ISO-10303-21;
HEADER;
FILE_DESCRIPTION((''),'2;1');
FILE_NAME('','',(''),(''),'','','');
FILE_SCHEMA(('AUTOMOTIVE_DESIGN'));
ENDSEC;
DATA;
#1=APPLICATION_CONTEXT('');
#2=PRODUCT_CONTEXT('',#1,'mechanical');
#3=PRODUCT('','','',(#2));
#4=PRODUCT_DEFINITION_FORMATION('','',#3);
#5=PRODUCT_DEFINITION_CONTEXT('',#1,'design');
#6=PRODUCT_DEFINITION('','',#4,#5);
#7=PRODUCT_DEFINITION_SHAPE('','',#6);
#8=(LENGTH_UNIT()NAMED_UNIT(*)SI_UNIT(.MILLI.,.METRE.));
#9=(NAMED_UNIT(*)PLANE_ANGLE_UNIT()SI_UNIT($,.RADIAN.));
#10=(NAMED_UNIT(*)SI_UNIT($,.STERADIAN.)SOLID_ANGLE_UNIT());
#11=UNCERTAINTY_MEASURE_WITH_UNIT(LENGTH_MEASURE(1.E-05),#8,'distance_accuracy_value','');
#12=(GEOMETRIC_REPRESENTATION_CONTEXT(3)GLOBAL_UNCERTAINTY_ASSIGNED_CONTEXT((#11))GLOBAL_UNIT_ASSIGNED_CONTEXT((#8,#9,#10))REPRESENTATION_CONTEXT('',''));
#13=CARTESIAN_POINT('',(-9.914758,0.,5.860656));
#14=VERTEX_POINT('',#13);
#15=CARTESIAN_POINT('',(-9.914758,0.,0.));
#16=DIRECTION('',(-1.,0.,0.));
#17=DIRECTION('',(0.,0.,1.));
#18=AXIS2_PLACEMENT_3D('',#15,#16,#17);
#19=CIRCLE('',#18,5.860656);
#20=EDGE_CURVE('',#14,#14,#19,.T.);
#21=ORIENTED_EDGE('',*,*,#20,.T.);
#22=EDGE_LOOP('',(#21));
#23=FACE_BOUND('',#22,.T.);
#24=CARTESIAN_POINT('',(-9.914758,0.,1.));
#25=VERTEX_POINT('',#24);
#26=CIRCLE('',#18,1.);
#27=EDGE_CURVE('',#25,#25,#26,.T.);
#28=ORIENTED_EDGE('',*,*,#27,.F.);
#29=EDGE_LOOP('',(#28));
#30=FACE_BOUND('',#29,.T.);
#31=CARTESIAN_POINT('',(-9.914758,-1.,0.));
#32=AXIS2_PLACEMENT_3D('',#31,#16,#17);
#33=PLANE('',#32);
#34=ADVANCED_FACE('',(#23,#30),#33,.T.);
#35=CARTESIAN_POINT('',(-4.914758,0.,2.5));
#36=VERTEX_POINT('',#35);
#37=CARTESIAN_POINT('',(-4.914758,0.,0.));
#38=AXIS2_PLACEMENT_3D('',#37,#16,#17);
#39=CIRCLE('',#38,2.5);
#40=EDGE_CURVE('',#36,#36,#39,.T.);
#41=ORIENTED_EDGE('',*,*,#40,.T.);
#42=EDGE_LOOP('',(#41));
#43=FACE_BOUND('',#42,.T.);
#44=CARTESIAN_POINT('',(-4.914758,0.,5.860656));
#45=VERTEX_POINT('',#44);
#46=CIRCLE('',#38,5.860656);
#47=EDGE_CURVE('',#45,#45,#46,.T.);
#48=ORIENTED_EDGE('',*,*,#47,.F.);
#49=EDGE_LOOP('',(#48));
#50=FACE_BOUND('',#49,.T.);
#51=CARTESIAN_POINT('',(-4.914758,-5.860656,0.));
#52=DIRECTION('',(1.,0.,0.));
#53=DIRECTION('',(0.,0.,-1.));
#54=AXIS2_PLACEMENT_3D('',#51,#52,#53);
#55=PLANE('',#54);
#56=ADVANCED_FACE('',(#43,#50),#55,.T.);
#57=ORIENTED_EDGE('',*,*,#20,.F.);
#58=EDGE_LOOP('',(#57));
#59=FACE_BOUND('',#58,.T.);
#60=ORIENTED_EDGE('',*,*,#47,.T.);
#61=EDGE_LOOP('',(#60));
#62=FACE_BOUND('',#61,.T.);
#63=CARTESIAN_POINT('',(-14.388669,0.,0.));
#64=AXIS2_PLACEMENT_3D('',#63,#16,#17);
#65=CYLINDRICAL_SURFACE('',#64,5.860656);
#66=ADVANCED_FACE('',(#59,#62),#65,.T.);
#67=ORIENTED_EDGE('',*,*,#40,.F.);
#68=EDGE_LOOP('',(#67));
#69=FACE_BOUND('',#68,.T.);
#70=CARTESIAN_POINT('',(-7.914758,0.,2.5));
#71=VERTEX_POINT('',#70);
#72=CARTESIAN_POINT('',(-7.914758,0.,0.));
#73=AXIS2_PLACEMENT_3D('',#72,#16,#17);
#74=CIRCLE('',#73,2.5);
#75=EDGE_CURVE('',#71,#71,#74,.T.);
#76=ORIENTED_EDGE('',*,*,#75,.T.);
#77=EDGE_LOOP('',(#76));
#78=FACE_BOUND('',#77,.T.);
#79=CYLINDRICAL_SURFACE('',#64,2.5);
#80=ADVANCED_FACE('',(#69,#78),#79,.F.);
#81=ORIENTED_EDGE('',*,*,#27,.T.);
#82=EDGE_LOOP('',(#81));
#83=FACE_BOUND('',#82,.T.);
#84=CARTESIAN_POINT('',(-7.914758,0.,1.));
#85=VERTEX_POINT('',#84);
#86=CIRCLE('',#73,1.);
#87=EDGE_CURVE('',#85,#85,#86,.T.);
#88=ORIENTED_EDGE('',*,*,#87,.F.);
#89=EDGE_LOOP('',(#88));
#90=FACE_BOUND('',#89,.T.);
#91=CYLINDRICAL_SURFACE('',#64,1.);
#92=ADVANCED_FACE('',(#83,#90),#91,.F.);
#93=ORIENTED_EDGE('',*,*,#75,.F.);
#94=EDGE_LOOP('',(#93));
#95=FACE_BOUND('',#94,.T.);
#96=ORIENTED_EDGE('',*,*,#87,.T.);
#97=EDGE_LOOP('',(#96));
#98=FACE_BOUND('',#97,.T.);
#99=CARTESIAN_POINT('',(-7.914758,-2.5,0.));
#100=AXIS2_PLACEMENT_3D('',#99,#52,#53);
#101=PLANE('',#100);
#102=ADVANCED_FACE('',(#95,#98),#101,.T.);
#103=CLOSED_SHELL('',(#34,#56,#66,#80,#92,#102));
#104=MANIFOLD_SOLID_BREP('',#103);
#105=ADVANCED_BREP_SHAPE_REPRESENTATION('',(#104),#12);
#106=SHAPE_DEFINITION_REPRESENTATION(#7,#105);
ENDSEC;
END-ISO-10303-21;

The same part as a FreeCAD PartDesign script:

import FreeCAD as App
import Part
import Sketcher


def add_polygon(sketch, points):
    """Adds a closed chain of lines whose ends are joined by coincident constraints."""
    first, n = sketch.GeometryCount, len(points)
    for a, b in zip(points, points[1:] + points[:1]):
        sketch.addGeometry(Part.LineSegment(App.Vector(*a, 0), App.Vector(*b, 0)), False)
    for i in range(n):
        sketch.addConstraint(Sketcher.Constraint("Coincident", first + i, 2, first + (i + 1) % n, 1))

doc = App.newDocument("Part")
body = doc.addObject("PartDesign::Body", "Body")

# Sketch on XY plane
sketch1 = body.newObject("Sketcher::SketchObject", "Sketch")
sketch1.AttachmentSupport = (doc.getObject("XY_Plane"), [""])
sketch1.MapMode = "FlatFace"
add_polygon(sketch1, [(-9.9, -5.9), (-4.9, -5.9), (-4.9, -2.5), (-7.9, -2.5), (-7.9, -1), (-9.9, -1)])  # lines 0-5
sketch1.addConstraint([
    Sketcher.Constraint("Horizontal", 0),
    Sketcher.Constraint("Vertical", 1),
    Sketcher.Constraint("Horizontal", 2),
    Sketcher.Constraint("Vertical", 3),
    Sketcher.Constraint("Horizontal", 4),
    Sketcher.Constraint("Vertical", 5),
    Sketcher.Constraint("DistanceX", 0, 1, 0, 2, 5.0),
    Sketcher.Constraint("DistanceX", 2, 2, 2, 1, 3.0),
    Sketcher.Constraint("DistanceY", 3, 1, 3, 2, 1.5),
    Sketcher.Constraint("DistanceY", 3, 2, -1, 1, 1.0),
    Sketcher.Constraint("DistanceY", 1, 1, 1, 2, 3.360656),
    Sketcher.Constraint("DistanceX", 0, 2, -1, 1, 4.914758),
])
revolution = body.newObject("PartDesign::Revolution", "Revolution")
revolution.Profile = sketch1
revolution.ReferenceAxis = (sketch1, ["H_Axis"])
revolution.Angle = 360

doc.recompute()
